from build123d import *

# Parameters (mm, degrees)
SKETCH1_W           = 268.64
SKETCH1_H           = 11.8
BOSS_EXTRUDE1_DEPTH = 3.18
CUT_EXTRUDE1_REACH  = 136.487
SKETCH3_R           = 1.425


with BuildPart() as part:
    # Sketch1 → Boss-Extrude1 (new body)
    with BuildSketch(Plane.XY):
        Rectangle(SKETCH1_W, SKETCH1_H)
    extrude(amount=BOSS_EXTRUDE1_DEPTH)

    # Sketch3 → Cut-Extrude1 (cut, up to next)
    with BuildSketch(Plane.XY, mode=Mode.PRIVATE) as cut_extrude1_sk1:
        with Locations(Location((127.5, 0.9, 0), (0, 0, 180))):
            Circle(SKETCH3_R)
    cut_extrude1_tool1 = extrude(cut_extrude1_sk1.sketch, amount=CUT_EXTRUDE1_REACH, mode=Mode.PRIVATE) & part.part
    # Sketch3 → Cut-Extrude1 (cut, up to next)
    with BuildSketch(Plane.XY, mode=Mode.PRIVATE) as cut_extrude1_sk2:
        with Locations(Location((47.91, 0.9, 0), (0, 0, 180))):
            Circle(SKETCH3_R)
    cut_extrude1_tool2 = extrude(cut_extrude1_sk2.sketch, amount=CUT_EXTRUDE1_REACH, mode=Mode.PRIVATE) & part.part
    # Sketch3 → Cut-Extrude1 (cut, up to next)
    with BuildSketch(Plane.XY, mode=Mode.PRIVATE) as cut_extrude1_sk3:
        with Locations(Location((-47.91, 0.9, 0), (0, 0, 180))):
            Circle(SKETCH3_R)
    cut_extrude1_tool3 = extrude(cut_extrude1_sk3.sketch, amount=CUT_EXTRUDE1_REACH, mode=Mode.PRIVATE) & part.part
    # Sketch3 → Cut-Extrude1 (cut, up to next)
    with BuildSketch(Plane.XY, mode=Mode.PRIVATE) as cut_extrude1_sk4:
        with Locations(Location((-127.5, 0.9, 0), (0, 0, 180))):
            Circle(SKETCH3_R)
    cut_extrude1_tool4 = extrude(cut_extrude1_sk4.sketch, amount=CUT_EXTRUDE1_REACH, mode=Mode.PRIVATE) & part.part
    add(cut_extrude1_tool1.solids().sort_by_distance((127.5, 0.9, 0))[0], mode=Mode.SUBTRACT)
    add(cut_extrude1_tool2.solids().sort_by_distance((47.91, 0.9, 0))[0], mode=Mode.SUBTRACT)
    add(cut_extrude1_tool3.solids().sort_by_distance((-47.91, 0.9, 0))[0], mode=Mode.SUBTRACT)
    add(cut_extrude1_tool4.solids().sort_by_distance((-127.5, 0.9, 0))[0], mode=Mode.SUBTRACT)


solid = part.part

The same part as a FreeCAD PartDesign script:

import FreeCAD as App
import Part
import Sketcher

V = App.Vector

doc = App.newDocument("Part")
body = doc.addObject("PartDesign::Body", "Body")

# Sketch on XY plane
sketch1 = body.newObject("Sketcher::SketchObject", "Sketch")
sketch1.AttachmentSupport = (doc.getObject("XY_Plane"), [""])
sketch1.MapMode = "FlatFace"
sketch1.addGeometry(Part.LineSegment(V(-134, 6, 0), V(-134, -6, 0)), False)
sketch1.addGeometry(Part.LineSegment(V(-134, -6, 0), V(134, -6, 0)), False)
sketch1.addGeometry(Part.LineSegment(V(134, -6, 0), V(134, 6, 0)), False)
sketch1.addGeometry(Part.LineSegment(V(134, 6, 0), V(-134, 6, 0)), False)
sketch1.addConstraint(Sketcher.Constraint("Coincident", 0, 2, 1, 1))
sketch1.addConstraint(Sketcher.Constraint("Coincident", 1, 2, 2, 1))
sketch1.addConstraint(Sketcher.Constraint("Coincident", 2, 2, 3, 1))
sketch1.addConstraint(Sketcher.Constraint("Coincident", 3, 2, 0, 1))
sketch1.addConstraint(Sketcher.Constraint("Vertical", 0))
sketch1.addConstraint(Sketcher.Constraint("Horizontal", 1))
sketch1.addConstraint(Sketcher.Constraint("Vertical", 2))
sketch1.addConstraint(Sketcher.Constraint("Horizontal", 3))
sketch1.addConstraint(Sketcher.Constraint("Symmetric", 0, 2, 2, 2, -1, 1))
sketch1.addConstraint(Sketcher.Constraint("DistanceY", 0, 2, 0, 1, 11.8))
sketch1.addConstraint(Sketcher.Constraint("DistanceX", 1, 1, 1, 2, 268.64))
pad1 = body.newObject("PartDesign::Pad", "Pad")
pad1.Profile = sketch1
pad1.Length = 3.18

# Sketch on XY plane
sketch2 = body.newObject("Sketcher::SketchObject", "Sketch001")
sketch2.AttachmentSupport = (doc.getObject("XY_Plane"), [""])
sketch2.MapMode = "FlatFace"
sketch2.addGeometry(Part.Circle(V(127.5, 0.9, 0), V(0, 0, 1), 1.4), False)
sketch2.addConstraint(Sketcher.Constraint("Diameter", 0, 2.85))
sketch2.addConstraint(Sketcher.Constraint("DistanceX", -1, 1, 0, 3, 127.5))
sketch2.addConstraint(Sketcher.Constraint("DistanceY", -1, 1, 0, 3, 0.9))
pocket1 = body.newObject("PartDesign::Pocket", "Pocket")
pocket1.Profile = sketch2
pocket1.Type = "UpToFirst"
pocket1.Reversed = True

# Sketch on XY plane
sketch3 = body.newObject("Sketcher::SketchObject", "Sketch002")
sketch3.AttachmentSupport = (doc.getObject("XY_Plane"), [""])
sketch3.MapMode = "FlatFace"
sketch3.addGeometry(Part.Circle(V(47.9, 0.9, 0), V(0, 0, 1), 1.4), False)
sketch3.addConstraint(Sketcher.Constraint("Diameter", 0, 2.85))
sketch3.addConstraint(Sketcher.Constraint("DistanceY", -1, 1, 0, 3, 0.9))
sketch3.addConstraint(Sketcher.Constraint("DistanceX", -1, 1, 0, 3, 47.91))
pocket2 = body.newObject("PartDesign::Pocket", "Pocket001")
pocket2.Profile = sketch3
pocket2.Type = "UpToFirst"
pocket2.Reversed = True

# Sketch on XY plane
sketch4 = body.newObject("Sketcher::SketchObject", "Sketch003")
sketch4.AttachmentSupport = (doc.getObject("XY_Plane"), [""])
sketch4.MapMode = "FlatFace"
sketch4.addGeometry(Part.Circle(V(-47.9, 0.9, 0), V(0, 0, 1), 1.4), False)
sketch4.addConstraint(Sketcher.Constraint("Diameter", 0, 2.85))
sketch4.addConstraint(Sketcher.Constraint("DistanceY", -1, 1, 0, 3, 0.9))
sketch4.addConstraint(Sketcher.Constraint("DistanceX", 0, 3, -1, 1, 47.91))
pocket3 = body.newObject("PartDesign::Pocket", "Pocket002")
pocket3.Profile = sketch4
pocket3.Type = "UpToFirst"
pocket3.Reversed = True

# Sketch on XY plane
sketch5 = body.newObject("Sketcher::SketchObject", "Sketch004")
sketch5.AttachmentSupport = (doc.getObject("XY_Plane"), [""])
sketch5.MapMode = "FlatFace"
sketch5.addGeometry(Part.Circle(V(-127.5, 0.9, 0), V(0, 0, 1), 1.4), False)
sketch5.addConstraint(Sketcher.Constraint("Diameter", 0, 2.85))
sketch5.addConstraint(Sketcher.Constraint("DistanceX", 0, 3, -1, 1, 127.5))
sketch5.addConstraint(Sketcher.Constraint("DistanceY", -1, 1, 0, 3, 0.9))
pocket4 = body.newObject("PartDesign::Pocket", "Pocket003")
pocket4.Profile = sketch5
pocket4.Type = "UpToFirst"
pocket4.Reversed = True

doc.recompute()
